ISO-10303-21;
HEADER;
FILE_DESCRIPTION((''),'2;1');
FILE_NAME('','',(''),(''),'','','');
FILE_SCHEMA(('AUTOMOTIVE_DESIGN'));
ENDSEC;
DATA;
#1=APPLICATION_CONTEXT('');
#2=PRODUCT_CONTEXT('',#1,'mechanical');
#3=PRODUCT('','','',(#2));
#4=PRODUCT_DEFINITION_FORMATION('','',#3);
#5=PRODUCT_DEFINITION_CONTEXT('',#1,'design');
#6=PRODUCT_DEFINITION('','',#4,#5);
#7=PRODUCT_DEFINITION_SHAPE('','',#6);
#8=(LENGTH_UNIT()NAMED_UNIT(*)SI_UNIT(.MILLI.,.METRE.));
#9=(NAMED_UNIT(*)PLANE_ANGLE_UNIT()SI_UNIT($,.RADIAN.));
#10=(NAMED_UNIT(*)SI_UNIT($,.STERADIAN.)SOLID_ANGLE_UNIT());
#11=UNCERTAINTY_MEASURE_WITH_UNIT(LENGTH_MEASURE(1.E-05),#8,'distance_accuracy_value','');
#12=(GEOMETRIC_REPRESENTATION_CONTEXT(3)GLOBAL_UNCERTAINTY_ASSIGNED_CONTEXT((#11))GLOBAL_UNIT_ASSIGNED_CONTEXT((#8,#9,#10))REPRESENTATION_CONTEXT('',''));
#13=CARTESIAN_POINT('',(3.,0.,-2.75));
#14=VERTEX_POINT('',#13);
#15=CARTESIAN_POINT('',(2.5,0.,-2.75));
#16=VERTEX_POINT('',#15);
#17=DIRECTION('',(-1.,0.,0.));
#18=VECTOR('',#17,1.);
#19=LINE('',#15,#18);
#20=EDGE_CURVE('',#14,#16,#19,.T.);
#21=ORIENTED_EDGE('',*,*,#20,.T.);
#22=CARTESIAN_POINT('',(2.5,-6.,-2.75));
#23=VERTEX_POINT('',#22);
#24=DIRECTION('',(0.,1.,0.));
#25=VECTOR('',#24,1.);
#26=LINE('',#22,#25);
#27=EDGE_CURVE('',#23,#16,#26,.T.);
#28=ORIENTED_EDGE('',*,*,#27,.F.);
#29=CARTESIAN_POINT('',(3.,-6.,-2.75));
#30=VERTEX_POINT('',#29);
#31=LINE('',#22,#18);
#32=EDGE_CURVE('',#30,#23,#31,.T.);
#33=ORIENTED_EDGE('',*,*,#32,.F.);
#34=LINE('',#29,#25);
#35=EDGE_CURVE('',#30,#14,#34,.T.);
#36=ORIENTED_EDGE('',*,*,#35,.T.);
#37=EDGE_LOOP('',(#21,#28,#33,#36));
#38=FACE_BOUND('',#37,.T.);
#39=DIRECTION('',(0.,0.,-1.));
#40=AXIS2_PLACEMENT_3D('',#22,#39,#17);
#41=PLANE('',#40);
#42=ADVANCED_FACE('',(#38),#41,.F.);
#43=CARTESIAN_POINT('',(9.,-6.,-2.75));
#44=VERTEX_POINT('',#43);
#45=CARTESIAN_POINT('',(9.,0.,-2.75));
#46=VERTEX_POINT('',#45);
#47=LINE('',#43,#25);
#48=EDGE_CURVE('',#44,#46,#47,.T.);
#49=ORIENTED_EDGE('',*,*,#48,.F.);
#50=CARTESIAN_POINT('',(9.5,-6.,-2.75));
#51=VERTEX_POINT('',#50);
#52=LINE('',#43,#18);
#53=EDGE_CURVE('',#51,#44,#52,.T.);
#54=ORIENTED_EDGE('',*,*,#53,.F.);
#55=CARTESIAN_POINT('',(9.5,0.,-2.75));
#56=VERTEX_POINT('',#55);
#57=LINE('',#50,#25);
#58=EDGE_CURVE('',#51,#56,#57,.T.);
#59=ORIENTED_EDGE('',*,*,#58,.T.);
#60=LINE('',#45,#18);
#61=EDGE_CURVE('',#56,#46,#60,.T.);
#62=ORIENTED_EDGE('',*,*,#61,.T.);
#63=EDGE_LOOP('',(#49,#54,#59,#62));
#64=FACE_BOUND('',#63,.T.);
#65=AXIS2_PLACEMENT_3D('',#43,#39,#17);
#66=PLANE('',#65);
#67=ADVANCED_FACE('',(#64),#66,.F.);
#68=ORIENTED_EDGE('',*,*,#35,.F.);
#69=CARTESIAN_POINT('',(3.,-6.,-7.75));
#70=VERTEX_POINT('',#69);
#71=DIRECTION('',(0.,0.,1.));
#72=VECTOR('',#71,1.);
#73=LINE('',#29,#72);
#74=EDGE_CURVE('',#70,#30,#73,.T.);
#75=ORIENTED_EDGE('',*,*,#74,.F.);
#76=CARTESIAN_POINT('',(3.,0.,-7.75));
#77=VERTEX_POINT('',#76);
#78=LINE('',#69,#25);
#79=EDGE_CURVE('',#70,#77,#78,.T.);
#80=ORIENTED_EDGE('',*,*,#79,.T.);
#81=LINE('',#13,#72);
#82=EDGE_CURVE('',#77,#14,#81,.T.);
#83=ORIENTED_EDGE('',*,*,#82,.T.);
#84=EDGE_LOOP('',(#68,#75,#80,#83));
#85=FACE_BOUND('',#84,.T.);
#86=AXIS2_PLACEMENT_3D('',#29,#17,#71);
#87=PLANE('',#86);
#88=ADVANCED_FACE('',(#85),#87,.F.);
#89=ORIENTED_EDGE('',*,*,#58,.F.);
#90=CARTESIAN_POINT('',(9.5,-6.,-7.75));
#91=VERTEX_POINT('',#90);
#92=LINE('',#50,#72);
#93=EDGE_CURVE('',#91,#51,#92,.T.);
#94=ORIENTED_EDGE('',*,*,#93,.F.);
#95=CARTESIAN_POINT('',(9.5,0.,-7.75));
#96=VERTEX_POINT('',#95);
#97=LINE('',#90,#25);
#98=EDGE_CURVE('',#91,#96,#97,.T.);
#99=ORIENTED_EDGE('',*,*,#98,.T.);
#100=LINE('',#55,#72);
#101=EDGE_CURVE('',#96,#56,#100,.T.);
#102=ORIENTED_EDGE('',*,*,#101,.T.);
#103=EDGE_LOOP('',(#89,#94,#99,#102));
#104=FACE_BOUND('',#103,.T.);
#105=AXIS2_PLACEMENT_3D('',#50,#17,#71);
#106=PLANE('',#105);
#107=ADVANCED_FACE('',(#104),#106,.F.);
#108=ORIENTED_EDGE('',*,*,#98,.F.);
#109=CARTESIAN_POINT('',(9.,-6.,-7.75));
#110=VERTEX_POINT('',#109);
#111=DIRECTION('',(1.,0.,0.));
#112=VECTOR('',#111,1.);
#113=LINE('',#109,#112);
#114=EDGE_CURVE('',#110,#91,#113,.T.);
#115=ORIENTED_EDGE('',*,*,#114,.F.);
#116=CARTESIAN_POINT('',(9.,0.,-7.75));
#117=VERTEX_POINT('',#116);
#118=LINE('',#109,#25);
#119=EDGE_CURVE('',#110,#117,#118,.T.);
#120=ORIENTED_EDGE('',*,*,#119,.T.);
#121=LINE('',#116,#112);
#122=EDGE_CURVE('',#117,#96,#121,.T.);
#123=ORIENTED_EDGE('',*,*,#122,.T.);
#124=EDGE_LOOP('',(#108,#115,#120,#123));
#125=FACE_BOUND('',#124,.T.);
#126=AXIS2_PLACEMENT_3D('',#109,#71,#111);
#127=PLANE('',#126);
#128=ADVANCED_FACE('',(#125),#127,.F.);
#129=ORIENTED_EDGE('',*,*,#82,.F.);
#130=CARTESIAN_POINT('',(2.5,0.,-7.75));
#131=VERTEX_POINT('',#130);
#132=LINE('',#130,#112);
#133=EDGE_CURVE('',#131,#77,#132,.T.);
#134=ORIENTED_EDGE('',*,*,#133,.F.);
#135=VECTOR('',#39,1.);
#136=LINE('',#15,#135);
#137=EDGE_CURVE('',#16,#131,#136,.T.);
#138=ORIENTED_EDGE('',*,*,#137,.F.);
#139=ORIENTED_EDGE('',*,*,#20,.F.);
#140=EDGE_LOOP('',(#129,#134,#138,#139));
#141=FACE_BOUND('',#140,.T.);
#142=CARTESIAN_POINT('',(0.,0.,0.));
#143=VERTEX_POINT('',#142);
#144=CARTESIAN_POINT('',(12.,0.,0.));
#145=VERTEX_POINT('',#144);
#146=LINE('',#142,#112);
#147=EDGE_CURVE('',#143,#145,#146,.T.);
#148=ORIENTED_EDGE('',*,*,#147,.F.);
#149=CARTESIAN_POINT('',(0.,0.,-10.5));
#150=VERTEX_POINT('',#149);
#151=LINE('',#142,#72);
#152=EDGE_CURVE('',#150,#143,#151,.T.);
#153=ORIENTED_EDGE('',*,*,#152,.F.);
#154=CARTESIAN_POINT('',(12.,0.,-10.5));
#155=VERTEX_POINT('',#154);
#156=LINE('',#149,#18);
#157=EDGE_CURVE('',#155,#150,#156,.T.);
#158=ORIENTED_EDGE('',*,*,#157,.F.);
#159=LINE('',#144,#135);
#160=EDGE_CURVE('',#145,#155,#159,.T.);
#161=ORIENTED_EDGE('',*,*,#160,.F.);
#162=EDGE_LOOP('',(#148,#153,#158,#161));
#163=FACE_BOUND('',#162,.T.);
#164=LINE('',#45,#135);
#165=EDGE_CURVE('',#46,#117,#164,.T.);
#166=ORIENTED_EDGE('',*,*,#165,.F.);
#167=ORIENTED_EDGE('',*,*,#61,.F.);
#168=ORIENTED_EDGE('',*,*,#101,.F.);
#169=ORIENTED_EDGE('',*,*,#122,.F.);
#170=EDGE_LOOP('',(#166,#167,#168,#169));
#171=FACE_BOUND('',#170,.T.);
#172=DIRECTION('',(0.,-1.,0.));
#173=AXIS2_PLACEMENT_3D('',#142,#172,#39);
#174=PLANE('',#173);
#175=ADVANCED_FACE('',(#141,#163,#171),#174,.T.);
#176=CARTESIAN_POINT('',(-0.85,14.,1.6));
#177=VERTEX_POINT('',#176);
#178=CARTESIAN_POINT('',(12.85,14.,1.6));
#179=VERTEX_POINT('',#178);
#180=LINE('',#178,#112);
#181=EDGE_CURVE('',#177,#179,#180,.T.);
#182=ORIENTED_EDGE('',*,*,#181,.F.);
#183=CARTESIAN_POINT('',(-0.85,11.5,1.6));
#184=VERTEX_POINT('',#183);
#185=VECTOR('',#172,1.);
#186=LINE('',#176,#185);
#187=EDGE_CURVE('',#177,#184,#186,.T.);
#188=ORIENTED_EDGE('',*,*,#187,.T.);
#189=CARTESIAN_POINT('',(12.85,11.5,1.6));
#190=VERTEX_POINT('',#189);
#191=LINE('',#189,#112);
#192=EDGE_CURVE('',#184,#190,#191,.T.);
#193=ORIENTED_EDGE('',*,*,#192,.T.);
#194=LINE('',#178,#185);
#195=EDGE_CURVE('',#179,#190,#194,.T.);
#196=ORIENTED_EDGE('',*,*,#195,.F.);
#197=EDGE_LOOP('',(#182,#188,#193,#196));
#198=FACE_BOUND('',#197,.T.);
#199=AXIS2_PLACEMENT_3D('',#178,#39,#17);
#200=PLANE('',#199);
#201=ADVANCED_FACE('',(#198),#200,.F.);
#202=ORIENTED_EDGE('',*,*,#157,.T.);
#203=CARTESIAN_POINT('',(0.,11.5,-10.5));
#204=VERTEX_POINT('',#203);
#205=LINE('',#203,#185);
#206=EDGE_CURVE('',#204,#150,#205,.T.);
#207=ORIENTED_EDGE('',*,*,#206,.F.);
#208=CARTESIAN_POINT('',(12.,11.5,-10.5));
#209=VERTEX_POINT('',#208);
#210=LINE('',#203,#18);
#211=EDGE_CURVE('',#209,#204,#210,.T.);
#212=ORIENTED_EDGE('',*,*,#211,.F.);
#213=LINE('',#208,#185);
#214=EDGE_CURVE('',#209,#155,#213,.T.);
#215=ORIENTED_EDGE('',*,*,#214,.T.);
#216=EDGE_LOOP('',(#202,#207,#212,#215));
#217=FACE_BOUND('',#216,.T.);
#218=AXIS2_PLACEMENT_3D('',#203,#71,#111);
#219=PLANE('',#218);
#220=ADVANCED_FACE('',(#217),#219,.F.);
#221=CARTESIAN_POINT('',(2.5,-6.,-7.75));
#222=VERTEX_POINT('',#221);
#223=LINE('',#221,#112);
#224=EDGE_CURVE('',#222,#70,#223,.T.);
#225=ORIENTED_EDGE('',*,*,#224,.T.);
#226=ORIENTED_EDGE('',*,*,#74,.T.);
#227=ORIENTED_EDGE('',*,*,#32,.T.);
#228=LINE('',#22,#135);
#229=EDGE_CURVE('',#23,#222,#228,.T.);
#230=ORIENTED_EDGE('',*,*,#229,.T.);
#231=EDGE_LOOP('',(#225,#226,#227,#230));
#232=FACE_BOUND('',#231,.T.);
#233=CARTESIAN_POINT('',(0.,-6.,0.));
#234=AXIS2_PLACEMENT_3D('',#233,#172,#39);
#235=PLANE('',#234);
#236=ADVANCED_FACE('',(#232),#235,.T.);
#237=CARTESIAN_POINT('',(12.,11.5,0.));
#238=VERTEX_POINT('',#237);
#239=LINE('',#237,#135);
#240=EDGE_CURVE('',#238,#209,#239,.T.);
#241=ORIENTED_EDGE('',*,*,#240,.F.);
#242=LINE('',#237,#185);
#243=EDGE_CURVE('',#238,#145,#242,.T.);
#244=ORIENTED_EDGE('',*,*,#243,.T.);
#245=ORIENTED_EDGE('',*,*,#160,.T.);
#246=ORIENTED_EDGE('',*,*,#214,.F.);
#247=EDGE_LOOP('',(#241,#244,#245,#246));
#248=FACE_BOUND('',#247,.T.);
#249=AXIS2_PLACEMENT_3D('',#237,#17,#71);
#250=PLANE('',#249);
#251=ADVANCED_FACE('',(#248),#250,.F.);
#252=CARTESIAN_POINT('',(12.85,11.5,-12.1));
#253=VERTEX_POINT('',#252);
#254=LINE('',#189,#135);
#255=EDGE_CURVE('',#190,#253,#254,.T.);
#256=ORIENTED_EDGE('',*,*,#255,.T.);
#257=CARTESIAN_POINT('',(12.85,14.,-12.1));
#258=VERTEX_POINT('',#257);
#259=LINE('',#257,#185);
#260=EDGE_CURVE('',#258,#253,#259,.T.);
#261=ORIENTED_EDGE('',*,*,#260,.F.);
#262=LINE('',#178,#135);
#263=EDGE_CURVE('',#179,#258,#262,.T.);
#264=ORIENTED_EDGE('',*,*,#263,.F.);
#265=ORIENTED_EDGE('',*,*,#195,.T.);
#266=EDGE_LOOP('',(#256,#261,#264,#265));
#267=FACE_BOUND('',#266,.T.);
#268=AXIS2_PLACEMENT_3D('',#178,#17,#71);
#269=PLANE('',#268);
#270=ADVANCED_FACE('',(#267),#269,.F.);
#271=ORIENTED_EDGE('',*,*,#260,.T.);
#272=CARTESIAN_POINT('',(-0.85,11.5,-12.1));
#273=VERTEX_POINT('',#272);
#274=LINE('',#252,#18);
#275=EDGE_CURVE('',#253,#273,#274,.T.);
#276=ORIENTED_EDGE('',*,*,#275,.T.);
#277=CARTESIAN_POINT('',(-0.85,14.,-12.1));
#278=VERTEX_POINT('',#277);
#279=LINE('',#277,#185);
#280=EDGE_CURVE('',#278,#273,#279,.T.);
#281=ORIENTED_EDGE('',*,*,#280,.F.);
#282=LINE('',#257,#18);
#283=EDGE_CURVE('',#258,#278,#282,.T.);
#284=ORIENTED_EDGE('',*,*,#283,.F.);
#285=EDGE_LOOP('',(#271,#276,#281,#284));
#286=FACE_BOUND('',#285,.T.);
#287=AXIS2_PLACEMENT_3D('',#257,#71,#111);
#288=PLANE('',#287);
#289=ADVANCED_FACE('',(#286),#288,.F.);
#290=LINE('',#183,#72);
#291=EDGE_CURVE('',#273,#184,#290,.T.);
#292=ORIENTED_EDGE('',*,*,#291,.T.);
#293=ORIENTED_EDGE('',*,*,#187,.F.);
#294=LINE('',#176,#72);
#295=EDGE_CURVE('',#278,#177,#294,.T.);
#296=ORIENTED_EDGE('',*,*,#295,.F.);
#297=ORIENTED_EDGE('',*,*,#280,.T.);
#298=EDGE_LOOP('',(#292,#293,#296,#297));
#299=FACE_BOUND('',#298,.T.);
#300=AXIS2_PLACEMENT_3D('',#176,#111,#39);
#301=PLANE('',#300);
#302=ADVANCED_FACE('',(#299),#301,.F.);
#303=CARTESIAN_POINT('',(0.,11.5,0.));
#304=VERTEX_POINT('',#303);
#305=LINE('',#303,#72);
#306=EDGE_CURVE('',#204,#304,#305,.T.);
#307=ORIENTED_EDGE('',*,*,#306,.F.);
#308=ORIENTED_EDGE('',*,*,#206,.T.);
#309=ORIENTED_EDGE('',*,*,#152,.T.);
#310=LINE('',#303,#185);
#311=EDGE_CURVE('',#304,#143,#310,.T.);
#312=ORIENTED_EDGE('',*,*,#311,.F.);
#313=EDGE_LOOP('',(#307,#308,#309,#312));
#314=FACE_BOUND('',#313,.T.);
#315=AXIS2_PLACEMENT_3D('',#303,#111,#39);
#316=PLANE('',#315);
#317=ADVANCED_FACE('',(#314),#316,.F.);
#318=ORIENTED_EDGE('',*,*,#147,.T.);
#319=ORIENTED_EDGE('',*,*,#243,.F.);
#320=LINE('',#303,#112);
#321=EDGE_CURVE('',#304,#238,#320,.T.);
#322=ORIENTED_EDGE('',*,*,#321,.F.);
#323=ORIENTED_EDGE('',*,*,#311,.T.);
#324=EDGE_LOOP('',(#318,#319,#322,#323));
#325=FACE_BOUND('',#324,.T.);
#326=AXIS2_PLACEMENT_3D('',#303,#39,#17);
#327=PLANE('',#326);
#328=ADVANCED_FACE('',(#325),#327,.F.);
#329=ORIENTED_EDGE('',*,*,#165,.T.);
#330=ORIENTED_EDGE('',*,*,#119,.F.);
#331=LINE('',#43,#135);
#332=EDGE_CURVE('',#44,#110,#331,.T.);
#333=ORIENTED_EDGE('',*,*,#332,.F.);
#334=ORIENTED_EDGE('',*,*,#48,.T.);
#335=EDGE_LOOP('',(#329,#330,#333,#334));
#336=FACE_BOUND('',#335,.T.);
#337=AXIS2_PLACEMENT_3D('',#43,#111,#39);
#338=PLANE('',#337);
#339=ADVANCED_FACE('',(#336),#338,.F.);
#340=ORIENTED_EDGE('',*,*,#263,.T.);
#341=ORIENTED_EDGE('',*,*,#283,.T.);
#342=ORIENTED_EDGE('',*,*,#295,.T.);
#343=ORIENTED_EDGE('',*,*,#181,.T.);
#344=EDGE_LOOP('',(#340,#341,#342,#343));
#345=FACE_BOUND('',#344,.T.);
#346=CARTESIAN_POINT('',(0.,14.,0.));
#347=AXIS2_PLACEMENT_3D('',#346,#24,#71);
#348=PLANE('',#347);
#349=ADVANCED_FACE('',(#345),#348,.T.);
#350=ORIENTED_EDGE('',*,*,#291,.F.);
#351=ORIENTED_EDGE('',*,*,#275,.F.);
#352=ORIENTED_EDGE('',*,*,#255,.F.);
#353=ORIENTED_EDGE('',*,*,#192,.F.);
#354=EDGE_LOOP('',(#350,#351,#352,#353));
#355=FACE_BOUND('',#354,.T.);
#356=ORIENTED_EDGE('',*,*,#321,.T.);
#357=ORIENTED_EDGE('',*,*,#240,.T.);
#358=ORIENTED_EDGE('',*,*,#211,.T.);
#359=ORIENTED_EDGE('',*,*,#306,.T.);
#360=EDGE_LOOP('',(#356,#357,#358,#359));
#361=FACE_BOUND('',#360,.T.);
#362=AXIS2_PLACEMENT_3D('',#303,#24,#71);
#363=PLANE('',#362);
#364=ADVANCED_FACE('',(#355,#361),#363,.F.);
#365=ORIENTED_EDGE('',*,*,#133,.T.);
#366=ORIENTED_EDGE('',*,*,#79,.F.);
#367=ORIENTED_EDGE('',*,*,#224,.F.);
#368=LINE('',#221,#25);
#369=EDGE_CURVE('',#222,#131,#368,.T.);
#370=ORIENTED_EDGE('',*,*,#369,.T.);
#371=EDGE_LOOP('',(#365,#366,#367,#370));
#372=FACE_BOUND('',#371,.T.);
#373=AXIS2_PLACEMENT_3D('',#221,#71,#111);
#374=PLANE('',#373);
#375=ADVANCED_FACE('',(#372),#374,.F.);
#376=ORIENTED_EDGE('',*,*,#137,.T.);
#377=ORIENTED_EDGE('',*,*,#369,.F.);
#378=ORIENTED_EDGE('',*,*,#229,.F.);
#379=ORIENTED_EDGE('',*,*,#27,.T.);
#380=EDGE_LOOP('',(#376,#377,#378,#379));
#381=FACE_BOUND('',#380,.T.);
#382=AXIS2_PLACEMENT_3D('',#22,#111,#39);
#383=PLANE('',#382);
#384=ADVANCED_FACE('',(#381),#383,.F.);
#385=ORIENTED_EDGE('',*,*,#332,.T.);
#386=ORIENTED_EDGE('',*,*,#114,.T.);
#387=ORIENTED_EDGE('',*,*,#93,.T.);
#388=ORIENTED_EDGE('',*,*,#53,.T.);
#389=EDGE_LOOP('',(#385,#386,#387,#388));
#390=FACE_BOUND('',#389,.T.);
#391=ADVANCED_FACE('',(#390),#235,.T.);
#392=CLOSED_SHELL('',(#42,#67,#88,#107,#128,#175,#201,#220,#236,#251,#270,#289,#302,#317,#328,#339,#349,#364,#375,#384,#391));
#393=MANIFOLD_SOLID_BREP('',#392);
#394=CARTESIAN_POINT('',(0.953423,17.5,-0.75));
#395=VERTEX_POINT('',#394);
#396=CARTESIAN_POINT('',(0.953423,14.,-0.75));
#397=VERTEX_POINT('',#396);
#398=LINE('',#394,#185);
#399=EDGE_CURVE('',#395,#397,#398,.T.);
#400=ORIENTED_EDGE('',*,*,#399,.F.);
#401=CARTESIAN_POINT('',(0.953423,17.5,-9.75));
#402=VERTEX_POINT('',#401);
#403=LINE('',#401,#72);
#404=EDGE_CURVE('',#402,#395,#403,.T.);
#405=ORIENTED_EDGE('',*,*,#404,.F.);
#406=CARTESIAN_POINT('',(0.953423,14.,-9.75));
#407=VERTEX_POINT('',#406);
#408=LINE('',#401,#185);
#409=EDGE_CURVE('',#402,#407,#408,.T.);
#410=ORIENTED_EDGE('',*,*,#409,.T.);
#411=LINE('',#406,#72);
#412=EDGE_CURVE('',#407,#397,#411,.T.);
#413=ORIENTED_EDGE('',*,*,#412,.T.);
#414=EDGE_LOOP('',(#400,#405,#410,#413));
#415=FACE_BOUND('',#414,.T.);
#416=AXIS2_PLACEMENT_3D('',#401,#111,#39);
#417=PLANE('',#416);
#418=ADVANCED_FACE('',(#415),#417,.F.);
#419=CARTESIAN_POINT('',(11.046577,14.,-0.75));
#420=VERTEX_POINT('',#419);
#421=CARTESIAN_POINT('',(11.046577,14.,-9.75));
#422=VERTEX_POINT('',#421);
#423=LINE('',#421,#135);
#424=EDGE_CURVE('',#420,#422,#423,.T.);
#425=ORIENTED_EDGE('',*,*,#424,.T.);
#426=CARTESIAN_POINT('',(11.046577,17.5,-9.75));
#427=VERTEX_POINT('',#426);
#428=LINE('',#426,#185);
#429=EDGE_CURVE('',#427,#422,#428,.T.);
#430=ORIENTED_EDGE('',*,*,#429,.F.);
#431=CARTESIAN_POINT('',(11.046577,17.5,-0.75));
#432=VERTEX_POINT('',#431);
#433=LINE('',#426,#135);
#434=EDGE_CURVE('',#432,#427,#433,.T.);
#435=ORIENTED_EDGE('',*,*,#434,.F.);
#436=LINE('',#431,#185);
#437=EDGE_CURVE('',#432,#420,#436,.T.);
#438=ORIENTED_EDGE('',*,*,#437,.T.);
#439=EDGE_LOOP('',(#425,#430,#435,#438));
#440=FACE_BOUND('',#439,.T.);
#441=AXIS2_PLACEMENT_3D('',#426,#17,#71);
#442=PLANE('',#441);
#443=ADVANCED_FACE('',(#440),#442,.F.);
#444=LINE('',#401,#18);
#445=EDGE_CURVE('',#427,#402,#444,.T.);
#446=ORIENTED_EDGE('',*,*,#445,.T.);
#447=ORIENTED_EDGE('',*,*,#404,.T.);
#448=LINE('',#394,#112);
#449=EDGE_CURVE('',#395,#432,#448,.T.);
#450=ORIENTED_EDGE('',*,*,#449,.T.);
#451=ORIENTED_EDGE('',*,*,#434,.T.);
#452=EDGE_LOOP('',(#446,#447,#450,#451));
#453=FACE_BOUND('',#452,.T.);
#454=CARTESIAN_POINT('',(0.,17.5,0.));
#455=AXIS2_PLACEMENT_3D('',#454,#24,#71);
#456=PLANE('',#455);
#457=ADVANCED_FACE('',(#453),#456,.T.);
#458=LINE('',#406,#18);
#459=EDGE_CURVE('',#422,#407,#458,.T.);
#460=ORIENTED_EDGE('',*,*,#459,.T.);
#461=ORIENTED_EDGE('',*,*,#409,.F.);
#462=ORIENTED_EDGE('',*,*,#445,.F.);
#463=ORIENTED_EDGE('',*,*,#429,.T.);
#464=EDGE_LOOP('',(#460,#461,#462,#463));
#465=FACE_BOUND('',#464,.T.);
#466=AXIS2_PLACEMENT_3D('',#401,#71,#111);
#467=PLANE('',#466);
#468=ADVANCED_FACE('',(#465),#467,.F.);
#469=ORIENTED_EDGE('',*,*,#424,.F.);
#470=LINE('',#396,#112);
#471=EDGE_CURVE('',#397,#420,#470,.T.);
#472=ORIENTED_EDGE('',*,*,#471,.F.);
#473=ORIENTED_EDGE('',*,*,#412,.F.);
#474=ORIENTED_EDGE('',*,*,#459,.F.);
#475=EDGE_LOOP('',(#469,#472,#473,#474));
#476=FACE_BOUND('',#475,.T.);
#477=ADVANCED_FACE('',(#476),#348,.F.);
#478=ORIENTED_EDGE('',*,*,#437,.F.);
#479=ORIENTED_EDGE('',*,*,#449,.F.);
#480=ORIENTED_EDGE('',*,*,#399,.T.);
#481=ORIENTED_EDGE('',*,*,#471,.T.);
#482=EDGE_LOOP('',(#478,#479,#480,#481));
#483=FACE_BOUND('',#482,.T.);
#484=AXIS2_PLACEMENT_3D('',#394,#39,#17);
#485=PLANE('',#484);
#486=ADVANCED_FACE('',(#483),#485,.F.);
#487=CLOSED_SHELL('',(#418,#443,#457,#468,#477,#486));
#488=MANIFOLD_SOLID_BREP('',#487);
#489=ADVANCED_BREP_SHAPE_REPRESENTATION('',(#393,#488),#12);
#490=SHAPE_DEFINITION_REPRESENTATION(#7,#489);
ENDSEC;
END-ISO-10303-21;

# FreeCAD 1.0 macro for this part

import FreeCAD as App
import Part
import Sketcher
from FreeCAD import Vector


def add_polygon(sketch, points):
    """Adds a closed chain of lines whose ends are joined by coincident constraints."""
    first, n = sketch.GeometryCount, len(points)
    for a, b in zip(points, points[1:] + points[:1]):
        sketch.addGeometry(Part.LineSegment(App.Vector(*a, 0), App.Vector(*b, 0)), False)
    for i in range(n):
        sketch.addConstraint(Sketcher.Constraint("Coincident", first + i, 2, first + (i + 1) % n, 1))

doc = App.newDocument("Part")
body = doc.addObject("PartDesign::Body", "Body")

# Sketch on XZ plane
sketch1 = body.newObject("Sketcher::SketchObject", "Sketch")
sketch1.AttachmentSupport = (doc.getObject("XZ_Plane"), [""])
sketch1.MapMode = "FlatFace"
add_polygon(sketch1, [(0, -10), (0, 0), (12, 0), (12, -10)])  # lines 0-3
sketch1.addConstraint([
    Sketcher.Constraint("Vertical", 0),
    Sketcher.Constraint("Horizontal", 1),
    Sketcher.Constraint("Vertical", 2),
    Sketcher.Constraint("Horizontal", 3),
    Sketcher.Constraint("Coincident", 0, 2, -1, 1),
    Sketcher.Constraint("DistanceX", 1, 1, 1, 2, 12.0),
    Sketcher.Constraint("DistanceY", 0, 1, 0, 2, 10.5),
])
pad1 = body.newObject("PartDesign::Pad", "Pad")
pad1.Profile = sketch1
pad1.Length = 11.5
pad1.Reversed = True

# Sketch on XZ plane
sketch2 = body.newObject("Sketcher::SketchObject", "Sketch001")
sketch2.AttachmentSupport = (doc.getObject("XZ_Plane"), [""])
sketch2.MapMode = "FlatFace"
sketch2.AttachmentOffset = App.Placement(Vector(0, 0, -11.5), App.Rotation())
add_polygon(sketch2, [(-1, -12), (-1, 2), (13, 2), (13, -12)])  # lines 0-3
sketch2.addConstraint([
    Sketcher.Constraint("Vertical", 0),
    Sketcher.Constraint("Horizontal", 1),
    Sketcher.Constraint("Vertical", 2),
    Sketcher.Constraint("Horizontal", 3),
    Sketcher.Constraint("Equal", 3, 0),
    Sketcher.Constraint("DistanceX", 1, 1, 1, 2, 13.7),
    Sketcher.Constraint("DistanceY", -1, 1, 0, 2, 1.6),
    Sketcher.Constraint("DistanceX", 0, 2, -1, 1, 0.85),
])
pad2 = body.newObject("PartDesign::Pad", "Pad001")
pad2.Profile = sketch2
pad2.Length = 2.5
pad2.Reversed = True

# Sketch on XZ plane
sketch3 = body.newObject("Sketcher::SketchObject", "Sketch002")
sketch3.AttachmentSupport = (doc.getObject("XZ_Plane"), [""])
sketch3.MapMode = "FlatFace"
add_polygon(sketch3, [(3, -7.8), (3, -2.8), (2.5, -2.8), (2.5, -7.8)])  # lines 0-3
add_polygon(sketch3, [(9.5, -7.8), (9.5, -2.8), (9, -2.8), (9, -7.8)])  # lines 4-7
sketch3.addConstraint([
    Sketcher.Constraint("Vertical", 0),
    Sketcher.Constraint("Horizontal", 1),
    Sketcher.Constraint("Vertical", 2),
    Sketcher.Constraint("Horizontal", 3),
    Sketcher.Constraint("Vertical", 4),
    Sketcher.Constraint("Horizontal", 5),
    Sketcher.Constraint("Vertical", 6),
    Sketcher.Constraint("Horizontal", 7),
    Sketcher.Constraint("Horizontal", 1, 2, 4, 2),
    Sketcher.Constraint("Horizontal", 3, 2, 6, 2),
    Sketcher.Constraint("Equal", 3, 5),
    Sketcher.Constraint("DistanceY", 0, 1, 0, 2, 5.0),
    Sketcher.Constraint("DistanceX", 1, 2, 1, 1, 0.5),
    Sketcher.Constraint("DistanceX", -1, 1, 0, 2, 3.0),
    Sketcher.Constraint("DistanceX", -1, 1, 5, 2, 9.0),
    Sketcher.Constraint("DistanceY", 0, 2, -1, 1, 2.75),
])
pad3 = body.newObject("PartDesign::Pad", "Pad002")
pad3.Profile = sketch3
pad3.Length = 6
body2 = doc.addObject("PartDesign::Body", "Body001")

# Sketch on XZ plane
sketch4 = body2.newObject("Sketcher::SketchObject", "Sketch003")
sketch4.AttachmentSupport = (doc.getObject("XZ_Plane001"), [""])
sketch4.MapMode = "FlatFace"
sketch4.AttachmentOffset = App.Placement(Vector(0, 0, -14), App.Rotation())
add_polygon(sketch4, [(1, -10), (1, -1), (11, -1), (11, -10)])  # lines 0-3
sketch4.addConstraint([
    Sketcher.Constraint("Vertical", 0),
    Sketcher.Constraint("Horizontal", 1),
    Sketcher.Constraint("Vertical", 2),
    Sketcher.Constraint("Horizontal", 3),
    Sketcher.Constraint("DistanceY", 0, 1, 0, 2, 9.0),
    Sketcher.Constraint("DistanceY", 0, 2, -1, 1, 0.75),
    Sketcher.Constraint("DistanceX", 1, 1, 1, 2, 10.093154),
    Sketcher.Constraint("DistanceX", -1, 1, 0, 2, 0.953423),
])
pad4 = body2.newObject("PartDesign::Pad", "Pad003")
pad4.Profile = sketch4
pad4.Length = 3.5
pad4.Reversed = True

doc.recompute()
